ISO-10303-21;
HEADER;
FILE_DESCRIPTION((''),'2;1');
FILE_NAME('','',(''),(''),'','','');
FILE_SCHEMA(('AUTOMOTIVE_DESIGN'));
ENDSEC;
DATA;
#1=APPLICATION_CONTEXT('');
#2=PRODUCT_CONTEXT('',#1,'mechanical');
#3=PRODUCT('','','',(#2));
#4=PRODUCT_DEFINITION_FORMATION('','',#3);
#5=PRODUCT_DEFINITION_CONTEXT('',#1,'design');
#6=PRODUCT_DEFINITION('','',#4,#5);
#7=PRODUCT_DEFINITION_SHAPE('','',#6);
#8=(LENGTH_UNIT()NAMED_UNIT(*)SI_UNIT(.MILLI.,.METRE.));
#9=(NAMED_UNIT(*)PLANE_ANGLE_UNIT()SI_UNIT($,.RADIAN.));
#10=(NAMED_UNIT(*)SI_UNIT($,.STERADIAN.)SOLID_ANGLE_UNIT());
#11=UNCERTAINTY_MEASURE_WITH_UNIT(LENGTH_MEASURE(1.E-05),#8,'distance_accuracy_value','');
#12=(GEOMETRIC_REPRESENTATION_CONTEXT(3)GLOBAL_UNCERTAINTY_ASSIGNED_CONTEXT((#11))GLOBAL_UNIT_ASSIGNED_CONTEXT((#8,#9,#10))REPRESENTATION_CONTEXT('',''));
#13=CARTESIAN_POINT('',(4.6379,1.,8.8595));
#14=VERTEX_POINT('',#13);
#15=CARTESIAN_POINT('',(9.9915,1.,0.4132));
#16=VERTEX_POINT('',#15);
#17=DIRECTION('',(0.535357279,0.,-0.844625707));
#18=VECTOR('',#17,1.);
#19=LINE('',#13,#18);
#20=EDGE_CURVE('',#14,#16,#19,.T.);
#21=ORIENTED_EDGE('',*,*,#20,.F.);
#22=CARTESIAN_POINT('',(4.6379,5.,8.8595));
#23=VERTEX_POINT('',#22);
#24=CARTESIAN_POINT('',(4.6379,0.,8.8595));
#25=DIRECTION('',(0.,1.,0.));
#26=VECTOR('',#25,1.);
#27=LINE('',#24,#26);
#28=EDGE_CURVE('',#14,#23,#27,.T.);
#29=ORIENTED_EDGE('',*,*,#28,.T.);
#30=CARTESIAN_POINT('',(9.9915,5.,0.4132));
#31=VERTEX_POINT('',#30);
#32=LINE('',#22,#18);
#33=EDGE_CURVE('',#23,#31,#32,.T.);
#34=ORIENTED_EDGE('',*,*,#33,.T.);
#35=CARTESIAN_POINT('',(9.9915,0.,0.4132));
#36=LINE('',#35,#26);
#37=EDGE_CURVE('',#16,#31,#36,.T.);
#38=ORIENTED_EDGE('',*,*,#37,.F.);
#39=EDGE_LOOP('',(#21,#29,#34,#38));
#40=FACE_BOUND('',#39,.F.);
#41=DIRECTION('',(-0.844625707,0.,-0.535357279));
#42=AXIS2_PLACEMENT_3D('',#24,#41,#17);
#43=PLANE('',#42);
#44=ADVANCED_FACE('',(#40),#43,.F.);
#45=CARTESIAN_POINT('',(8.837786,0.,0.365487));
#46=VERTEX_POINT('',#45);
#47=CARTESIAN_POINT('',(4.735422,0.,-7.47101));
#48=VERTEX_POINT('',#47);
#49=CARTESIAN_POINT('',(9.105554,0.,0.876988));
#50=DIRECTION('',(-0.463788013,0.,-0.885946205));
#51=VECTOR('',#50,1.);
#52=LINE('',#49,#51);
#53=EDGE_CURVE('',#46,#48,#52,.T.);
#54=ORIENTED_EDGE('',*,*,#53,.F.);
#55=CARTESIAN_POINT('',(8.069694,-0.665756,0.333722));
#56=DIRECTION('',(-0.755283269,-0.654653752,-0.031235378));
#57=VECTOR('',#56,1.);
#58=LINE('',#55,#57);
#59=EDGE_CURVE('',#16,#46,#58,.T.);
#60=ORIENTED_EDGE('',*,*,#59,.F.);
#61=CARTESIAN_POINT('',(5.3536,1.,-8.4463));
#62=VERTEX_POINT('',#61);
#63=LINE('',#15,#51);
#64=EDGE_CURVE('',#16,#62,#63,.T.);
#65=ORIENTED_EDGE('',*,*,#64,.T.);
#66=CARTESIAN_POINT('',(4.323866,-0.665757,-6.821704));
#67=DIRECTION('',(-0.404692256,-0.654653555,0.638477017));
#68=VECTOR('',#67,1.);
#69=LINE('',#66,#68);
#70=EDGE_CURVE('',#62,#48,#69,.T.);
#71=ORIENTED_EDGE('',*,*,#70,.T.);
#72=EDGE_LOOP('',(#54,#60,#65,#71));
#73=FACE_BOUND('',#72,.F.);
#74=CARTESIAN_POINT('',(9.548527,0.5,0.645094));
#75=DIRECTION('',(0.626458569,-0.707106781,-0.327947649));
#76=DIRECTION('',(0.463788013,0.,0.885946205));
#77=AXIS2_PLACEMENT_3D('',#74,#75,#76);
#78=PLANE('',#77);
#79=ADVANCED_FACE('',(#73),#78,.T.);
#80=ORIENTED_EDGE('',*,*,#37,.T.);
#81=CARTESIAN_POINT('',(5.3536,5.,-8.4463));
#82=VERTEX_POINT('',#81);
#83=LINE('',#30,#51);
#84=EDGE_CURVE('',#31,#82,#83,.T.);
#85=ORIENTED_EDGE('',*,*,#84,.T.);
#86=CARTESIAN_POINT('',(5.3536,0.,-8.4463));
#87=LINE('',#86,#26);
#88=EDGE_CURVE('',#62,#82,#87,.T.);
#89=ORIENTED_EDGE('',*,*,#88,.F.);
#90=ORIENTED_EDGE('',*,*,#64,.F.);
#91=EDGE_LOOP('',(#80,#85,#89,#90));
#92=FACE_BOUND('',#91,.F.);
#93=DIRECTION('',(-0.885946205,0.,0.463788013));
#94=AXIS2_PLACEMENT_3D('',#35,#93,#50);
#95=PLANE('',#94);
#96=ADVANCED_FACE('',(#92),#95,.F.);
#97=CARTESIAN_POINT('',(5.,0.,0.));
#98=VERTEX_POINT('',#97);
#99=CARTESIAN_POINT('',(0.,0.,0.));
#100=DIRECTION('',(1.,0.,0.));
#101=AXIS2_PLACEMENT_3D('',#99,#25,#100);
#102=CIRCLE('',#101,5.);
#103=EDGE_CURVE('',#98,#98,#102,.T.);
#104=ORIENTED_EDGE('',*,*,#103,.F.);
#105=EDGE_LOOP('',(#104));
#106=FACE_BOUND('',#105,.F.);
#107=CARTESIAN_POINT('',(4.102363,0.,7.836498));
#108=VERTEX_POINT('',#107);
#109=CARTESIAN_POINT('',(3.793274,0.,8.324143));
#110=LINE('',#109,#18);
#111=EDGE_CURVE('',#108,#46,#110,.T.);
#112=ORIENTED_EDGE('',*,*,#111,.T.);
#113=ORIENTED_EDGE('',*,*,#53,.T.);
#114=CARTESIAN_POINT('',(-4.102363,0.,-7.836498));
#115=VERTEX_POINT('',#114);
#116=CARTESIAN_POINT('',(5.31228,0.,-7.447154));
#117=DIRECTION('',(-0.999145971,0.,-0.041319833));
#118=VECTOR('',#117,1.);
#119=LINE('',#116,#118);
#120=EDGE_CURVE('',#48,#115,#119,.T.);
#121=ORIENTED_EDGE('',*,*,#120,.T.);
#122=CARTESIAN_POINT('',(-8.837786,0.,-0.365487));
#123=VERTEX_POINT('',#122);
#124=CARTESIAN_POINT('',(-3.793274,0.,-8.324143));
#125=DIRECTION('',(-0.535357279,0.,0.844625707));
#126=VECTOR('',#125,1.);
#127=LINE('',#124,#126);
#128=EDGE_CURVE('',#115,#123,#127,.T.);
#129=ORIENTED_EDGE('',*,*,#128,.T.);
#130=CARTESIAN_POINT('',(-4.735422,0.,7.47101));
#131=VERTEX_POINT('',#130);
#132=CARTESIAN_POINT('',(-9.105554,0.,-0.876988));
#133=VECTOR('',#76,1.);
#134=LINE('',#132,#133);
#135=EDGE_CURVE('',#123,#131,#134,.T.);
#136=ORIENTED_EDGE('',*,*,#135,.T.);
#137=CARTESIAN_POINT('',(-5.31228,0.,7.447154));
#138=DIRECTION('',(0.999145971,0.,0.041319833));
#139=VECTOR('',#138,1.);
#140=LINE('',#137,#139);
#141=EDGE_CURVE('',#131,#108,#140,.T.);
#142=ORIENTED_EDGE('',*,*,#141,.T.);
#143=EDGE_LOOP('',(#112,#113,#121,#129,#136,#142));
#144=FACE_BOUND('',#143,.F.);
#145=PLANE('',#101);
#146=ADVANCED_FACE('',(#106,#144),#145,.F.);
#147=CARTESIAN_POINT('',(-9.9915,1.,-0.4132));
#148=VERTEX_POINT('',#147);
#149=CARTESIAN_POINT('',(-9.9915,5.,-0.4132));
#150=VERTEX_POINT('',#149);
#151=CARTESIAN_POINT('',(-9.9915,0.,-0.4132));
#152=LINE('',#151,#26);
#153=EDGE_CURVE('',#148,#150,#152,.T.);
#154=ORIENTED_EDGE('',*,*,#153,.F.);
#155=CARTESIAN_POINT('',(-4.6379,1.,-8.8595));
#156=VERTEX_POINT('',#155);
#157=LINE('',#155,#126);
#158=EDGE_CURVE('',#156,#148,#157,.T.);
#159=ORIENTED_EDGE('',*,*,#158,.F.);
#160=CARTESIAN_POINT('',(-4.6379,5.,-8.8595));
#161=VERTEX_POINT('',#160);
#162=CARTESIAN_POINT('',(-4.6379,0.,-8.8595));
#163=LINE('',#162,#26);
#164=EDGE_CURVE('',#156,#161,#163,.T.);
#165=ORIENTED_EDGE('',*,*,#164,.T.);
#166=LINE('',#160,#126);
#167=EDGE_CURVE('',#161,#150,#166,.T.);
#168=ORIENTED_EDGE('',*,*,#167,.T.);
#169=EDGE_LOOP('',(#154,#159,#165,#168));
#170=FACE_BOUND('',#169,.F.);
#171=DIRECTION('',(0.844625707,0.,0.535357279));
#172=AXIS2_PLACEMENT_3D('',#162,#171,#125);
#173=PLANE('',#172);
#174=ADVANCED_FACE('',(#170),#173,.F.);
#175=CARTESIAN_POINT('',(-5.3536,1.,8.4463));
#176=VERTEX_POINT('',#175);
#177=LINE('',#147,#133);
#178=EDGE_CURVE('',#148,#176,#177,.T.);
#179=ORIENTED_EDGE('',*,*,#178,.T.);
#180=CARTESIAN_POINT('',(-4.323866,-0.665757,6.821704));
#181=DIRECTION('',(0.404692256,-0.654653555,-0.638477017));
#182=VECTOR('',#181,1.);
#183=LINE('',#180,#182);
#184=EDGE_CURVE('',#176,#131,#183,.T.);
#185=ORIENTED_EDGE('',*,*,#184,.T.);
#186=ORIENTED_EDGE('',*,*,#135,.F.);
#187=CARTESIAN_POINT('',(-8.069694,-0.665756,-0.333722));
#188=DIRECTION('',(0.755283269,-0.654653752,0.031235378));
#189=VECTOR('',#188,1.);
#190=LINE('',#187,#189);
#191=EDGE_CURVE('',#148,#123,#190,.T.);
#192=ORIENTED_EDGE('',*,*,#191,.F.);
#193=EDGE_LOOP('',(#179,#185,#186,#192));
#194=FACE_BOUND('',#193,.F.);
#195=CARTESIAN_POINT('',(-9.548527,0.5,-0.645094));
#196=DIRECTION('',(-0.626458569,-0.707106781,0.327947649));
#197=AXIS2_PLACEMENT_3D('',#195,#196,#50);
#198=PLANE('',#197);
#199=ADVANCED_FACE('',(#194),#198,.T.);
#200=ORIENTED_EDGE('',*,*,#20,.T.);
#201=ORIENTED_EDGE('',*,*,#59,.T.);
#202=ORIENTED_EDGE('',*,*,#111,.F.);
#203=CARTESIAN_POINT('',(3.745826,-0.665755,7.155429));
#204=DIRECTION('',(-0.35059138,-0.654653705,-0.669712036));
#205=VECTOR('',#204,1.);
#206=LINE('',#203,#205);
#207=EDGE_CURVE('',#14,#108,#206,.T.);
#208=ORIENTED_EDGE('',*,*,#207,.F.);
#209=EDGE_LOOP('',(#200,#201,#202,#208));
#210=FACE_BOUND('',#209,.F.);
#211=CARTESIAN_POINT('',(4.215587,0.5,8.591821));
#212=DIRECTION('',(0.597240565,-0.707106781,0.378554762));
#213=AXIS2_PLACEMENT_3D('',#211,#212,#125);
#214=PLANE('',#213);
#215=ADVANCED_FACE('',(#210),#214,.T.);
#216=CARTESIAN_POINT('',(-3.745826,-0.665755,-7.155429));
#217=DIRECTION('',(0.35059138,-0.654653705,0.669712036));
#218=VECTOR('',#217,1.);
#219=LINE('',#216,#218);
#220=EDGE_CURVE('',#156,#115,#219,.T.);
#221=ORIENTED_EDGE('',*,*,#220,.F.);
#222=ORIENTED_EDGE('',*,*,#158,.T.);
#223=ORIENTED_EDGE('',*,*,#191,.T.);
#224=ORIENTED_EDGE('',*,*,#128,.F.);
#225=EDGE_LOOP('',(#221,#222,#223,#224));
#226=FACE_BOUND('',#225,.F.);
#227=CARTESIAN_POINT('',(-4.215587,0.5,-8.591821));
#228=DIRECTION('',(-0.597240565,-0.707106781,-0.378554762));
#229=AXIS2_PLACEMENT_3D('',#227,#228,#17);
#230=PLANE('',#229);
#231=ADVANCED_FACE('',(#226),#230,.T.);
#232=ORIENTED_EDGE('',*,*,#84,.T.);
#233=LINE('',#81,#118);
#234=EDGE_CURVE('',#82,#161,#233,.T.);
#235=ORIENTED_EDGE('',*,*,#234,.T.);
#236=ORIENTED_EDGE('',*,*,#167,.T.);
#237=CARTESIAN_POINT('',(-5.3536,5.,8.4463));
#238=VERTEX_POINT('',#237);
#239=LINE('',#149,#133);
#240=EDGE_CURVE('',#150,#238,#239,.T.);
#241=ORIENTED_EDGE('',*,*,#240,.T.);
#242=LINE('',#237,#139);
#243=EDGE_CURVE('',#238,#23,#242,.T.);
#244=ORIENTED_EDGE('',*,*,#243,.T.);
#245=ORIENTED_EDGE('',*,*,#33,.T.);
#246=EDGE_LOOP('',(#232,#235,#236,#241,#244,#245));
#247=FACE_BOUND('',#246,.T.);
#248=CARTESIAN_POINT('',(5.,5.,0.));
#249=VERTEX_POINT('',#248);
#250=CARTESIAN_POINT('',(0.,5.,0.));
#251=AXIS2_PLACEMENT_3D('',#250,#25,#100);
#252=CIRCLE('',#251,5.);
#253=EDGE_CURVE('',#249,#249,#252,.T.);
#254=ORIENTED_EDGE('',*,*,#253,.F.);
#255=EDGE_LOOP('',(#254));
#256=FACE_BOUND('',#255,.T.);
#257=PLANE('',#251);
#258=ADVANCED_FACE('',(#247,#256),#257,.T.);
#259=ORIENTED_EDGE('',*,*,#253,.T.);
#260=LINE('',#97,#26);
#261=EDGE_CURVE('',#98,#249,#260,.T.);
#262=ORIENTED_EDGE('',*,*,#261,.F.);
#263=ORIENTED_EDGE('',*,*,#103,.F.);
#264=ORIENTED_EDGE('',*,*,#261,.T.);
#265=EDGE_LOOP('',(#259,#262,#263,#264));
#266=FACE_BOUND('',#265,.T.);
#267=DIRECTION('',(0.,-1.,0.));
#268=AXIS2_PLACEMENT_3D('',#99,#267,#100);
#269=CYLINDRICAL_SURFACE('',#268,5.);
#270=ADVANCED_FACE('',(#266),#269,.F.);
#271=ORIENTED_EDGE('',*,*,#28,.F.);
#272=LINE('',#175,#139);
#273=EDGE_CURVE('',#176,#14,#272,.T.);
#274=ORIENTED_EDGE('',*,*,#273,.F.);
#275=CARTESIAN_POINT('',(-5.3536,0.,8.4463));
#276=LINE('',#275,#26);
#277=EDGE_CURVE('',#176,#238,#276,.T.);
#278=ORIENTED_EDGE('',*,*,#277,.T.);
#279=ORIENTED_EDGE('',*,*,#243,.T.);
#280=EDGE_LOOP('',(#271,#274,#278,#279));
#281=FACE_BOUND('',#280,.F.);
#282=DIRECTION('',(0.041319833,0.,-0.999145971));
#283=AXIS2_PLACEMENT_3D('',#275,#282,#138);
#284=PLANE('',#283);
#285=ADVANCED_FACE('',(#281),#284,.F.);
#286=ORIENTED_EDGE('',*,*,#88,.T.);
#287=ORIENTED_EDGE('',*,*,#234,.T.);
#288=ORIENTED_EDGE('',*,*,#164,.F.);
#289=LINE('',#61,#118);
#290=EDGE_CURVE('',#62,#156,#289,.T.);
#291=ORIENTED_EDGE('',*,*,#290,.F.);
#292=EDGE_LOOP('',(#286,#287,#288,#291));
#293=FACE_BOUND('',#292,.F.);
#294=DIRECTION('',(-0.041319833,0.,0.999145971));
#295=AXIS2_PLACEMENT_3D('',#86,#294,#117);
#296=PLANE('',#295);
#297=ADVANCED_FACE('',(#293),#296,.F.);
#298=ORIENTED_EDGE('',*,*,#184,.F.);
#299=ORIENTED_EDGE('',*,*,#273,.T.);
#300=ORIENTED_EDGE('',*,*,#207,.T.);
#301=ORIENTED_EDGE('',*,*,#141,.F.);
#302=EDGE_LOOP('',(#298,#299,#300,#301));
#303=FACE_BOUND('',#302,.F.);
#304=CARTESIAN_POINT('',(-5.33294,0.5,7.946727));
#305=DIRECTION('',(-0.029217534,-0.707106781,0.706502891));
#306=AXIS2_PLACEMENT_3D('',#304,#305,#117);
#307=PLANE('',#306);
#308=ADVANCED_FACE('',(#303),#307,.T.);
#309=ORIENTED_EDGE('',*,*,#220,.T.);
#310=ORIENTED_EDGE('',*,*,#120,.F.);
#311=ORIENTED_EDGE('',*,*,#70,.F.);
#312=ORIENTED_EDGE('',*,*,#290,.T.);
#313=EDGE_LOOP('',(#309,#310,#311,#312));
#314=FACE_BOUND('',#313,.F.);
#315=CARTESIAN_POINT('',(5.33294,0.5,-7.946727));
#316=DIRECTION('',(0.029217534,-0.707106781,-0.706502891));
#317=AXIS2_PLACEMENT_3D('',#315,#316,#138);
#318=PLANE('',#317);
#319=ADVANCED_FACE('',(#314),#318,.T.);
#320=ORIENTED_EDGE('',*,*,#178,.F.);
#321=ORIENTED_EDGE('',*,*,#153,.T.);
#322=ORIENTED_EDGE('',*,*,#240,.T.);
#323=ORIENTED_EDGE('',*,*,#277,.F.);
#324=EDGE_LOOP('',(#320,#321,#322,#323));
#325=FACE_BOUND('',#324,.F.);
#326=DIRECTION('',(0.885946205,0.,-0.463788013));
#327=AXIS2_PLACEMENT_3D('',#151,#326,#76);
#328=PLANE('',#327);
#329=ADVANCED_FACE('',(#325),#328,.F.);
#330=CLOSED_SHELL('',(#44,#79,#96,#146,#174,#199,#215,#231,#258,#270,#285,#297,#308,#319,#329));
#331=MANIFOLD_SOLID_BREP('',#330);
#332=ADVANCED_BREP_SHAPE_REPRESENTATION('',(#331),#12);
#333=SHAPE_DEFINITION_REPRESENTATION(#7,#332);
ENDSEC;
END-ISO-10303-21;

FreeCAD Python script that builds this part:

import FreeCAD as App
import Part
import Sketcher
from FreeCAD import Vector


def edges_at(feature, points):
    """Names of the edges that pass closest to the given points."""
    edges = feature.Shape.Edges
    near = lambda p: min(range(len(edges)), key=lambda i: edges[i].distToShape(Part.Vertex(*p))[0])
    return sorted({f"Edge{near(p) + 1}" for p in points})

doc = App.newDocument("Part")
params = doc.addObject("Spreadsheet::Sheet", "Params")
for row, (alias, value) in enumerate([
    ("sketch1_diameter", "10 mm"),
    ("sketch1_length", "10 mm"),
    ("pad1_length", "5 mm"),
    ("chamfer_size", "1 mm"),
], start=1):
    params.set(f"A{row}", alias)
    params.set(f"B{row}", "=" + value)
    params.setAlias(f"B{row}", alias)

body = doc.addObject("PartDesign::Body", "Body")

sketch1 = body.newObject("Sketcher::SketchObject", "Sketch")
sketch1.AttachmentSupport = (doc.getObject("XZ_Plane"), [""])
sketch1.MapMode = "FlatFace"
sketch1.addGeometry([
    Part.LineSegment(Vector(-5.3536, 8.4463, 0), Vector(4.6379, 8.8595, 0)),
    Part.LineSegment(Vector(4.6379, 8.8595, 0), Vector(9.9915, 0.4132, 0)),
    Part.LineSegment(Vector(9.9915, 0.4132, 0), Vector(5.3536, -8.4463, 0)),
    Part.LineSegment(Vector(5.3536, -8.4463, 0), Vector(-4.6379, -8.8595, 0)),
    Part.LineSegment(Vector(-4.6379, -8.8595, 0), Vector(-9.9915, -0.4132, 0)),
    Part.LineSegment(Vector(-9.9915, -0.4132, 0), Vector(-5.3536, 8.4463, 0)),
    Part.Circle(Vector(0, 0, 0), Vector(0, 0, 1), 5),
], False)
sketch1.addConstraint([
    Sketcher.Constraint("Coincident", 0, 2, 1, 1),
    Sketcher.Constraint("Coincident", 1, 2, 2, 1),
    Sketcher.Constraint("Coincident", 2, 2, 3, 1),
    Sketcher.Constraint("Coincident", 3, 2, 4, 1),
    Sketcher.Constraint("Coincident", 4, 2, 5, 1),
    Sketcher.Constraint("Coincident", 5, 2, 0, 1),
    Sketcher.Constraint("Coincident", 6, 3, -1, 1),
    Sketcher.Constraint("Symmetric", 0, 2, 3, 2, -1, 1),
    Sketcher.Constraint("Symmetric", 1, 2, 4, 2, -1, 1),
    Sketcher.Constraint("Symmetric", 2, 2, 5, 2, -1, 1),
    Sketcher.Constraint("Equal", 0, 1),
    Sketcher.Constraint("Equal", 1, 2),
    Sketcher.Constraint("Diameter", 6, 10.0),
    Sketcher.Constraint("Distance", 0, 10.0),
    Sketcher.Constraint("DistanceX", -1, 1, 0, 2, 4.638),
    Sketcher.Constraint("DistanceX", 2, 2, 1, 2, 4.638),
    Sketcher.Constraint("DistanceY", 3, 2, 0, 2, 17.719),
])
sketch1.setExpression("Constraints[12]", "Params.sketch1_diameter")
sketch1.setExpression("Constraints[13]", "Params.sketch1_length")
pad1 = body.newObject("PartDesign::Pad", "Pad")
pad1.Profile = sketch1
pad1.setExpression("Length", "Params.pad1_length")
pad1.Reversed = True
doc.recompute()

chamfer = body.newObject("PartDesign::Chamfer", "Chamfer")
chamfer.Base = (pad1, edges_at(pad1, [
    (-7.315, 0, -4.636),
    (-7.673, 0, 4.016),
    (-0.358, 0, 8.653),
    (7.315, 0, 4.636),
    (7.673, 0, -4.016),
    (0.358, 0, -8.653),
]))
chamfer.setExpression("Size", "Params.chamfer_size")

doc.recompute()
